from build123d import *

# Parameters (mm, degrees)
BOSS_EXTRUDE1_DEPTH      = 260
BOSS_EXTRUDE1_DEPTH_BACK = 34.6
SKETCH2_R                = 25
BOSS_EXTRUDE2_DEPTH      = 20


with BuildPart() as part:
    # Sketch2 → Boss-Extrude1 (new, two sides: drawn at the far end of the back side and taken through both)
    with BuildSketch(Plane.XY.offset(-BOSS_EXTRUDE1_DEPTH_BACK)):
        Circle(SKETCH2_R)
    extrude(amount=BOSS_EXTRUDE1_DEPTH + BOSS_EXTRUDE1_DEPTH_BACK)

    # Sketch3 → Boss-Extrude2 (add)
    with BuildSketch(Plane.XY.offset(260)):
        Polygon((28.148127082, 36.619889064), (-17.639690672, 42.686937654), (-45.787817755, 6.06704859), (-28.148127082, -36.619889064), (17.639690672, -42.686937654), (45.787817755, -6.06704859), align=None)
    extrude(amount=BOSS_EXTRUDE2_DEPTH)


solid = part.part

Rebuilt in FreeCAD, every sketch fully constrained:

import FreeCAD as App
import Part
import Sketcher
Q = App.Units.Quantity

doc = App.newDocument("Part")
params = doc.addObject("Spreadsheet::Sheet", "Params")
for row, (alias, value) in enumerate([
    ("sketch1_diameter", "50 mm"),
    ("pad1_length", "260 mm"),
    ("pad1_length2", "34.6 mm"),
    ("pad2_length", "20 mm"),
], start=1):
    params.set(f"A{row}", alias)
    params.set(f"B{row}", "=" + value)
    params.setAlias(f"B{row}", alias)

body = doc.addObject("PartDesign::Body", "Body")

# Sketch on XY plane
sketch1 = doc.addObject("Sketcher::SketchObject", "Sketch")
body.addObject(sketch1)
sketch1.AttachmentSupport = (doc.XY_Plane, [""])
sketch1.MapMode = "FlatFace"
sketch1.addGeometry(Part.Circle(App.Vector(0, 0, 0), App.Vector(0, 0, 1), 25), False)
sketch1.addConstraint([
    Sketcher.Constraint("Coincident", 0, 3, -1, 1),
    Sketcher.Constraint("Diameter", 0, Q("50 mm")),
])
sketch1.setExpression("Constraints[1]", "Params.sketch1_diameter")
pad1 = doc.addObject("PartDesign::Pad", "Pad")
body.addObject(pad1)
pad1.Profile = sketch1
pad1.Type = "TwoLengths"
pad1.setExpression("Length", "Params.pad1_length")
pad1.setExpression("Length2", "Params.pad1_length2")

# Sketch on XY plane
sketch2 = doc.addObject("Sketcher::SketchObject", "Sketch001")
body.addObject(sketch2)
sketch2.AttachmentSupport = (doc.XY_Plane, [""])
sketch2.MapMode = "FlatFace"
sketch2.AttachmentOffset = App.Placement(App.Vector(0, 0, 260), App.Rotation())
sketch2.addGeometry([
    Part.LineSegment(App.Vector(28, 37, 0), App.Vector(-18, 43, 0)),  # 0
    Part.LineSegment(App.Vector(-18, 43, 0), App.Vector(-46, 6, 0)),  # 1
    Part.LineSegment(App.Vector(-46, 6, 0), App.Vector(-28, -37, 0)),  # 2
    Part.LineSegment(App.Vector(-28, -37, 0), App.Vector(18, -43, 0)),  # 3
    Part.LineSegment(App.Vector(18, -43, 0), App.Vector(46, -6, 0)),  # 4
    Part.LineSegment(App.Vector(46, -6, 0), App.Vector(28, 37, 0)),  # 5
], False)
sketch2.addConstraint([
    Sketcher.Constraint("Coincident", 0, 2, 1, 1),
    Sketcher.Constraint("Coincident", 1, 2, 2, 1),
    Sketcher.Constraint("Coincident", 2, 2, 3, 1),
    Sketcher.Constraint("Coincident", 3, 2, 4, 1),
    Sketcher.Constraint("Coincident", 4, 2, 5, 1),
    Sketcher.Constraint("Coincident", 5, 2, 0, 1),
    Sketcher.Constraint("Symmetric", 0, 2, 3, 2, -1, 1),
    Sketcher.Constraint("Symmetric", 1, 2, 4, 2, -1, 1),
    Sketcher.Constraint("Symmetric", 2, 2, 5, 2, -1, 1),
    Sketcher.Constraint("Equal", 0, 1),
    Sketcher.Constraint("Equal", 1, 2),
    Sketcher.Constraint("Distance", 0, Q("46.188022 mm")),
    Sketcher.Constraint("DistanceX", 0, 2, -1, 1, Q("17.639691 mm")),
    Sketcher.Constraint("DistanceY", -1, 1, 1, 2, Q("6.067049 mm")),
    Sketcher.Constraint("DistanceY", 2, 2, -1, 1, Q("36.619889 mm")),
])
pad2 = doc.addObject("PartDesign::Pad", "Pad001")
body.addObject(pad2)
pad2.Profile = sketch2
pad2.setExpression("Length", "Params.pad2_length")

doc.recompute()
